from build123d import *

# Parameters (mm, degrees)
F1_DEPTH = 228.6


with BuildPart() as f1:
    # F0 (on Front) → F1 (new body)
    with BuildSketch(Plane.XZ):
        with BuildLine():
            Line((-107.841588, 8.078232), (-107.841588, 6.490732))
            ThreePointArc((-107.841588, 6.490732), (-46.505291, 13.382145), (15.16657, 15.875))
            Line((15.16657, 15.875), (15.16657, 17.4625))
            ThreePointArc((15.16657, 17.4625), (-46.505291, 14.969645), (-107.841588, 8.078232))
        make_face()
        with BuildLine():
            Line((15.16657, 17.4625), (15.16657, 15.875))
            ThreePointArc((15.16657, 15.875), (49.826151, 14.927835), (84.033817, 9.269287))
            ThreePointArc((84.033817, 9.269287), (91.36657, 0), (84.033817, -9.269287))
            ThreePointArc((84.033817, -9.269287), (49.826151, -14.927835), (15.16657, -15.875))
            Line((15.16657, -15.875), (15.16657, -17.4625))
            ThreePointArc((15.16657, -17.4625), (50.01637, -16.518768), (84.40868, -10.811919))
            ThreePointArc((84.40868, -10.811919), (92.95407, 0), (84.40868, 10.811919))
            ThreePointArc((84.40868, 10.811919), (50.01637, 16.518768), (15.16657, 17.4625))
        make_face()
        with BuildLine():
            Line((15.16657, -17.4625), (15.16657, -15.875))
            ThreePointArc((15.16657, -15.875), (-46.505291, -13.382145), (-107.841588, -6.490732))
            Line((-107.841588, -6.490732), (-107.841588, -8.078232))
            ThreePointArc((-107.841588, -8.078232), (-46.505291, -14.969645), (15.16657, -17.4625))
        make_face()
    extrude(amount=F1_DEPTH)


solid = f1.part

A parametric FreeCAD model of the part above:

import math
import FreeCAD as App
import Part
import Sketcher
Q = App.Units.Quantity

doc = App.newDocument("Part")
body = doc.addObject("PartDesign::Body", "Body")

# Sketch on XZ plane
sketch1 = body.newObject("Sketcher::SketchObject", "Sketch")
sketch1.AttachmentSupport = (doc.getObject("XZ_Plane"), [""])
sketch1.MapMode = "FlatFace"
sketch1.addGeometry(Part.LineSegment(App.Vector(-107.8, 8.1, 0), App.Vector(-107.8, 6.5, 0)), False)
sketch1.addGeometry(Part.ArcOfCircle(Part.Circle(App.Vector(19.2, -847.7, 0), App.Vector(0, 0, 1), 863.6), math.radians(90.27), math.radians(98.46)), False)
sketch1.addGeometry(Part.ArcOfCircle(Part.Circle(App.Vector(25.6, -237.9, 0), App.Vector(0, 0, 1), 254), math.radians(76.69), math.radians(92.35)), False)
sketch1.addGeometry(Part.ArcOfCircle(Part.Circle(App.Vector(81.8, 0, 0), App.Vector(0, 0, 1), 9.5), math.radians(-77), math.radians(77)), False)
sketch1.addGeometry(Part.ArcOfCircle(Part.Circle(App.Vector(25.6, 237.9, 0), App.Vector(0, 0, 1), 254), math.radians(-92.35), math.radians(-76.69)), False)
sketch1.addGeometry(Part.ArcOfCircle(Part.Circle(App.Vector(19.2, 847.7, 0), App.Vector(0, 0, 1), 863.6), math.radians(-98.46), math.radians(-90.27)), False)
sketch1.addGeometry(Part.LineSegment(App.Vector(-107.8, -6.5, 0), App.Vector(-107.8, -8.1, 0)), False)
sketch1.addGeometry(Part.ArcOfCircle(Part.Circle(App.Vector(19.2, 846.1, 0), App.Vector(0, 0, 1), 863.6), math.radians(-98.46), math.radians(-90.27)), False)
sketch1.addGeometry(Part.ArcOfCircle(Part.Circle(App.Vector(25.7, 236.3, 0), App.Vector(0, 0, 1), 254), math.radians(-92.38), math.radians(-76.64)), False)
sketch1.addGeometry(Part.ArcOfCircle(Part.Circle(App.Vector(81.8, 0, 0), App.Vector(0, 0, 1), 11.1), math.radians(-77), math.radians(77)), False)
sketch1.addGeometry(Part.ArcOfCircle(Part.Circle(App.Vector(25.7, -236.3, 0), App.Vector(0, 0, 1), 254), math.radians(76.64), math.radians(92.38)), False)
sketch1.addGeometry(Part.ArcOfCircle(Part.Circle(App.Vector(19.2, -846.1, 0), App.Vector(0, 0, 1), 863.6), math.radians(90.27), math.radians(98.46)), False)
sketch1.addConstraint(Sketcher.Constraint("Coincident", 0, 2, 1, 2))
sketch1.addConstraint(Sketcher.Constraint("Coincident", 1, 1, 2, 2))
sketch1.addConstraint(Sketcher.Constraint("Tangent", 2, 1, 3, 2))
sketch1.addConstraint(Sketcher.Constraint("Tangent", 3, 1, 4, 2))
sketch1.addConstraint(Sketcher.Constraint("Coincident", 4, 1, 5, 2))
sketch1.addConstraint(Sketcher.Constraint("Coincident", 5, 1, 6, 1))
sketch1.addConstraint(Sketcher.Constraint("Coincident", 6, 2, 7, 1))
sketch1.addConstraint(Sketcher.Constraint("Coincident", 7, 2, 8, 1))
sketch1.addConstraint(Sketcher.Constraint("Tangent", 8, 2, 9, 1))
sketch1.addConstraint(Sketcher.Constraint("Tangent", 9, 2, 10, 1))
sketch1.addConstraint(Sketcher.Constraint("Coincident", 10, 2, 11, 1))
sketch1.addConstraint(Sketcher.Constraint("Coincident", 11, 2, 0, 1))
sketch1.addConstraint(Sketcher.Constraint("Vertical", 0))
sketch1.addConstraint(Sketcher.Constraint("Vertical", 6))
sketch1.addConstraint(Sketcher.Constraint("Coincident", 9, 3, 3, 3))
sketch1.addConstraint(Sketcher.Constraint("Equal", 2, 4))
sketch1.addConstraint(Sketcher.Constraint("Equal", 1, 5))
sketch1.addConstraint(Sketcher.Constraint("Equal", 5, 7))
sketch1.addConstraint(Sketcher.Constraint("Equal", 8, 10))
sketch1.addConstraint(Sketcher.Constraint("Equal", 7, 11))
sketch1.addConstraint(Sketcher.Constraint("Symmetric", 2, 3, 4, 3, -1))
sketch1.addConstraint(Sketcher.Constraint("Symmetric", 1, 3, 5, 3, -1))
sketch1.addConstraint(Sketcher.Constraint("Symmetric", 7, 3, 11, 3, -1))
sketch1.addConstraint(Sketcher.Constraint("Vertical", 5, 3, 7, 3))
sketch1.addConstraint(Sketcher.Constraint("Vertical", 8, 3, 10, 3))
sketch1.addConstraint(Sketcher.Constraint("Vertical", 4, 1, 7, 2))
sketch1.addConstraint(Sketcher.Constraint("Radius", 3, Q("0.375 in")))
sketch1.addConstraint(Sketcher.Constraint("Radius", 9, Q("0.4375 in")))
sketch1.addConstraint(Sketcher.Constraint("DistanceY", 0, 2, 0, 1, Q("0.0625 in")))
sketch1.addConstraint(Sketcher.Constraint("DistanceY", 4, 1, 1, 1, Q("1.25 in")))
sketch1.addConstraint(Sketcher.Constraint("Radius", 1, 863.600021))
sketch1.addConstraint(Sketcher.Constraint("Radius", 2, 253.999959))
sketch1.addConstraint(Sketcher.Constraint("Radius", 8, 253.99994))
sketch1.addConstraint(Sketcher.Constraint("DistanceX", 1, 1, 3, 3, Q("2.625 in")))
sketch1.addConstraint(Sketcher.Constraint("DistanceX", -1, 1, 1, 3, 19.187689))
sketch1.addConstraint(Sketcher.Constraint("DistanceX", -1, 1, 2, 3, 25.573909))
sketch1.addConstraint(Sketcher.Constraint("DistanceX", 0, 2, -1, 1, 107.841588))
sketch1.addConstraint(Sketcher.Constraint("DistanceX", 6, 2, -1, 1, 107.841588))
pad1 = body.newObject("PartDesign::Pad", "Pad")
pad1.Profile = sketch1
pad1.Length = Q("9 in")

doc.recompute()
